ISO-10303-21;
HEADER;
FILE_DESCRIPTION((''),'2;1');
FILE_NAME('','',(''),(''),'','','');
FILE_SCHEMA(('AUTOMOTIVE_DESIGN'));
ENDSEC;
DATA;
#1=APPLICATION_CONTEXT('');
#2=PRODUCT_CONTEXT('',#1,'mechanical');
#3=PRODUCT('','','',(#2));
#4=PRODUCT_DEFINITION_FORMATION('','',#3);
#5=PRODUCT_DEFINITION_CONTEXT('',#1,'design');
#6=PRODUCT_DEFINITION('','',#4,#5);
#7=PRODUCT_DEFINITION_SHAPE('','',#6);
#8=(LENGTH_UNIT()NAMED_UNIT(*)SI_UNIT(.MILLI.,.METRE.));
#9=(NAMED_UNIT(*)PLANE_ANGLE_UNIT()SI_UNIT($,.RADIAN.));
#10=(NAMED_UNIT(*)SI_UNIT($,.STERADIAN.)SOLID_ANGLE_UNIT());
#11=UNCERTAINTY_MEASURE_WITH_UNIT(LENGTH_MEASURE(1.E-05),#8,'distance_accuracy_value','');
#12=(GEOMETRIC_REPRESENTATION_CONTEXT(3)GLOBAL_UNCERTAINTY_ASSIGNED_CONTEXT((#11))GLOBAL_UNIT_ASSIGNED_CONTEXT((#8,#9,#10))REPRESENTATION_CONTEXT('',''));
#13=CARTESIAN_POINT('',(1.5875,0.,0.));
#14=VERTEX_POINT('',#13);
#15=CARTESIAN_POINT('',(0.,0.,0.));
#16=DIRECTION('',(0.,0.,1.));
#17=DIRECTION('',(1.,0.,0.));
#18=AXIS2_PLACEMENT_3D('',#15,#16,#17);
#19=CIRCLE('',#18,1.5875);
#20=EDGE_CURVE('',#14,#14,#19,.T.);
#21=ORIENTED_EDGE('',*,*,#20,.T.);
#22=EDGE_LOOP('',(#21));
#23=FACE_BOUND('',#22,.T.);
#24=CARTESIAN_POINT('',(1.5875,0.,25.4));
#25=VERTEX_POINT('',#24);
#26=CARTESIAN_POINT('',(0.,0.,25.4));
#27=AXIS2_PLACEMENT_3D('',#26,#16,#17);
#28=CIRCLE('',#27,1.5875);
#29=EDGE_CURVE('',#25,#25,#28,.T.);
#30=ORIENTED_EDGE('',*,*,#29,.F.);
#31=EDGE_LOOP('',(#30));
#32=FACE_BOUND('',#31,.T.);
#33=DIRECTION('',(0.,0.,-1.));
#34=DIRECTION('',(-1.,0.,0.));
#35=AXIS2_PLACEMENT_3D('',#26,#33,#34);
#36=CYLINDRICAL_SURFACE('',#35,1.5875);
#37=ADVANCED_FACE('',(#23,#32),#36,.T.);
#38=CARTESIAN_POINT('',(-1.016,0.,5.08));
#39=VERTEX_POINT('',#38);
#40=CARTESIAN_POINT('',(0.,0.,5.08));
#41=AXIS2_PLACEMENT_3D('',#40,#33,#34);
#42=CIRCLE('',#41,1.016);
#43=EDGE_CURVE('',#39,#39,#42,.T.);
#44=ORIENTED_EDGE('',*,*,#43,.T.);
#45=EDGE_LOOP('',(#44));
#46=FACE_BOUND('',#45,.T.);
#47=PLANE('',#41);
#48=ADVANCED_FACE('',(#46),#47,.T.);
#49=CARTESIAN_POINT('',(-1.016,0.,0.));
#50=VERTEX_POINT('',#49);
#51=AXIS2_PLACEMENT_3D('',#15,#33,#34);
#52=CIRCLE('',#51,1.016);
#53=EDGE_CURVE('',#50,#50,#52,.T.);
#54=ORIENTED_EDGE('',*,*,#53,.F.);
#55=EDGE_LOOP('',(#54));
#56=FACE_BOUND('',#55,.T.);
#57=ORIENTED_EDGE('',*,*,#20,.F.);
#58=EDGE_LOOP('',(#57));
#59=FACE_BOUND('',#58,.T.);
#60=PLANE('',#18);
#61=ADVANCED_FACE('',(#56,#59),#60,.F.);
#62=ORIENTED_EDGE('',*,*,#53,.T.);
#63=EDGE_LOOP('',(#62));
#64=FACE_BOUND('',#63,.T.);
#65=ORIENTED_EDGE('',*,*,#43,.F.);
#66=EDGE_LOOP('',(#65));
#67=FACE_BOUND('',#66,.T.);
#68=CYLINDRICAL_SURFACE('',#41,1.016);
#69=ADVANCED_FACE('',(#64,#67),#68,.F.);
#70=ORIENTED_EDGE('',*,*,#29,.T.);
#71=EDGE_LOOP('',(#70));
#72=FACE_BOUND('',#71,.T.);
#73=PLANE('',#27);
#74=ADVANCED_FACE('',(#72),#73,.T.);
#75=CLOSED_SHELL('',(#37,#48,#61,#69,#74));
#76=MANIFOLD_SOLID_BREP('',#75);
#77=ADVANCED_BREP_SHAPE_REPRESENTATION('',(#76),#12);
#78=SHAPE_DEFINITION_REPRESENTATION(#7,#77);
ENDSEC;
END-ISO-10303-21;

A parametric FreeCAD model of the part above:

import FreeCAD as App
import Part
import Sketcher
Q = App.Units.Quantity

doc = App.newDocument("Part")
body = doc.addObject("PartDesign::Body", "Body")

sketch1 = body.newObject("Sketcher::SketchObject", "Sketch")
sketch1.AttachmentSupport = (doc.getObject("XY_Plane"), [""])
sketch1.MapMode = "FlatFace"
sketch1.addGeometry(Part.Circle(App.Vector(0, 0, 0), App.Vector(0, 0, 1), 1.5875), False)
sketch1.addConstraint(Sketcher.Constraint("Coincident", 0, 3, -1, 1))
sketch1.addConstraint(Sketcher.Constraint("Diameter", 0, Q("0.125 in")))
pad1 = body.newObject("PartDesign::Pad", "Pad")
pad1.Profile = sketch1
pad1.Length = Q("1 in")

sketch2 = body.newObject("Sketcher::SketchObject", "Sketch001")
sketch2.AttachmentSupport = (doc.getObject("XY_Plane"), [""])
sketch2.MapMode = "FlatFace"
sketch2.addGeometry(Part.Circle(App.Vector(0, 0, 0), App.Vector(0, 0, 1), 1.016), False)
sketch2.addConstraint(Sketcher.Constraint("Coincident", 0, 3, -1, 1))
sketch2.addConstraint(Sketcher.Constraint("Diameter", 0, Q("0.08 in")))
pocket1 = body.newObject("PartDesign::Pocket", "Pocket")
pocket1.Profile = sketch2
pocket1.Length = Q("0.2 in")
pocket1.Reversed = True

doc.recompute()
